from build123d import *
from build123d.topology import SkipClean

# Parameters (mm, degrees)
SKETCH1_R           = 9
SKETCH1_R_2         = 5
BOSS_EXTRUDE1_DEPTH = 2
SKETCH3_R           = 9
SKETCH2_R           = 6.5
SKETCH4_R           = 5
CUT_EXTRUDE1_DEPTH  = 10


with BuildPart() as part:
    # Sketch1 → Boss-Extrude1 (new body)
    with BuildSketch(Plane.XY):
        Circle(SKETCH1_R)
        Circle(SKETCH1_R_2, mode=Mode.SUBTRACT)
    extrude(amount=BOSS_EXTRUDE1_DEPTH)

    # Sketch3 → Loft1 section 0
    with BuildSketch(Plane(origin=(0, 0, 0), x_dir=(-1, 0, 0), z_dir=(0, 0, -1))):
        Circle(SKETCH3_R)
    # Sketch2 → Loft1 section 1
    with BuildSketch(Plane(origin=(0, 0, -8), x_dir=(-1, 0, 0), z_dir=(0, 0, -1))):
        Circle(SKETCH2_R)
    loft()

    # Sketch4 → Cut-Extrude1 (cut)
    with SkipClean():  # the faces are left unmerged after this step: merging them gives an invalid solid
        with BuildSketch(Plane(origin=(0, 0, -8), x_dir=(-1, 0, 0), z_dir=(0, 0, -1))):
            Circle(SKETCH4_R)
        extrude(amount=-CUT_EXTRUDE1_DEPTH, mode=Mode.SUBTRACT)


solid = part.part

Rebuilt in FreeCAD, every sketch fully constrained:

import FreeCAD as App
import Part
import Sketcher
from FreeCAD import Vector

doc = App.newDocument("Part")
body = doc.addObject("PartDesign::Body", "Body")

# Sketch on XY plane
sketch1 = body.newObject("Sketcher::SketchObject", "Sketch")
sketch1.AttachmentSupport = (doc.getObject("XY_Plane"), [""])
sketch1.MapMode = "FlatFace"
sketch1.addGeometry([
    Part.Circle(Vector(0, 0, 0), Vector(0, 0, 1), 9),
    Part.Circle(Vector(0, 0, 0), Vector(0, 0, 1), 5),
], False)
sketch1.addConstraint([
    Sketcher.Constraint("Coincident", 0, 3, -1, 1),
    Sketcher.Constraint("Coincident", 1, 3, -1, 1),
    Sketcher.Constraint("Diameter", 0, 18.0),
    Sketcher.Constraint("Diameter", 1, 10.0),
])
pad1 = body.newObject("PartDesign::Pad", "Pad")
pad1.Profile = sketch1
pad1.Length = 2

# Sketch on XY plane
sketch2 = body.newObject("Sketcher::SketchObject", "Sketch001")
sketch2.AttachmentSupport = (doc.getObject("XY_Plane"), [""])
sketch2.MapMode = "FlatFace"
sketch2.addGeometry(Part.Circle(Vector(0, 0, 0), Vector(0, 0, 1), 9), False)
sketch2.addConstraint([
    Sketcher.Constraint("Coincident", 0, 3, -1, 1),
    Sketcher.Constraint("Diameter", 0, 18.0),
])

# Sketch on XY plane
sketch3 = body.newObject("Sketcher::SketchObject", "Sketch002")
sketch3.AttachmentSupport = (doc.getObject("XY_Plane"), [""])
sketch3.MapMode = "FlatFace"
sketch3.AttachmentOffset = App.Placement(Vector(0, 0, -8), App.Rotation())
sketch3.addGeometry(Part.Circle(Vector(0, 0, 0), Vector(0, 0, 1), 6), False)
sketch3.addConstraint([
    Sketcher.Constraint("Coincident", 0, 3, -1, 1),
    Sketcher.Constraint("Diameter", 0, 13.0),
])

additiveloft = body.newObject("PartDesign::AdditiveLoft", "AdditiveLoft")
additiveloft.Profile = sketch2
additiveloft.Sections = [sketch3]

# Sketch on XY plane
sketch4 = body.newObject("Sketcher::SketchObject", "Sketch003")
sketch4.AttachmentSupport = (doc.getObject("XY_Plane"), [""])
sketch4.MapMode = "FlatFace"
sketch4.AttachmentOffset = App.Placement(Vector(0, 0, -8), App.Rotation())
sketch4.addGeometry(Part.Circle(Vector(0, 0, 0), Vector(0, 0, 1), 5), False)
sketch4.addConstraint([
    Sketcher.Constraint("Coincident", 0, 3, -1, 1),
    Sketcher.Constraint("Diameter", 0, 10.0),
])
pocket1 = body.newObject("PartDesign::Pocket", "Pocket")
pocket1.Profile = sketch4
pocket1.Length = 10
pocket1.Reversed = True

doc.recompute()
